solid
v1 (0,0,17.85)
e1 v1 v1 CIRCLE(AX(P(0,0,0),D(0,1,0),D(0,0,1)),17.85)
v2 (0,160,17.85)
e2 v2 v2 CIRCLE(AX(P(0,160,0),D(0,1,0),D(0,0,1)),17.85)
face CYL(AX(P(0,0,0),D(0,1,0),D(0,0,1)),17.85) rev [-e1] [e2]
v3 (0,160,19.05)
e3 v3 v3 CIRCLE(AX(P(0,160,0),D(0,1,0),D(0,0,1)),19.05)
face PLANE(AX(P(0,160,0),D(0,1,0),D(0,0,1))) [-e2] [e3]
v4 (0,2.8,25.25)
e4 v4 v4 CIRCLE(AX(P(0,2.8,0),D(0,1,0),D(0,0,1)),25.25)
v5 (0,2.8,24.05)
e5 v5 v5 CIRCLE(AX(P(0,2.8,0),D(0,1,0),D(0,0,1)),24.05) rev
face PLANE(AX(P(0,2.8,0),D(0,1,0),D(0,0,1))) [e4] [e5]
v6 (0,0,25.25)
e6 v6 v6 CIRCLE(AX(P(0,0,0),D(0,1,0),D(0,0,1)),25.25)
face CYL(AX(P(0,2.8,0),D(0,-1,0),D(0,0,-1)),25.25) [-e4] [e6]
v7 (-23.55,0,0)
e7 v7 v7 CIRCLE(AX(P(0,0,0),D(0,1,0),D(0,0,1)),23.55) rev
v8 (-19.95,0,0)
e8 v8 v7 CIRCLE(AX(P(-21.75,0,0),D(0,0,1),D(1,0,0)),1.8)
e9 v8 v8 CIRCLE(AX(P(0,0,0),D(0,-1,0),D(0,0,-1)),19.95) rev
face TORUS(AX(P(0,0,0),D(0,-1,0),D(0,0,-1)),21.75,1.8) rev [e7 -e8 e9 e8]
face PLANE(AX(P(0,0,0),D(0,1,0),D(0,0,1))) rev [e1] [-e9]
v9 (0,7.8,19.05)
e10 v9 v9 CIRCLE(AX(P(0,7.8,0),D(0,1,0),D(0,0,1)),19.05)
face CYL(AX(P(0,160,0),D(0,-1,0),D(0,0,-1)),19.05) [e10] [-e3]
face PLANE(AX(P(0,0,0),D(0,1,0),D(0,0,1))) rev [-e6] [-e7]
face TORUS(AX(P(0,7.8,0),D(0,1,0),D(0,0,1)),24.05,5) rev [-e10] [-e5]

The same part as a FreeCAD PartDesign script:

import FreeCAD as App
import Part
import Sketcher

V = App.Vector


def edges_at(feature, points):
    """Names of the edges that pass closest to the given points."""
    edges = feature.Shape.Edges
    near = lambda p: min(range(len(edges)), key=lambda i: edges[i].distToShape(Part.Vertex(*p))[0])
    return sorted({f"Edge{near(p) + 1}" for p in points})

doc = App.newDocument("Part")
params = doc.addObject("Spreadsheet::Sheet", "Params")
for row, (alias, value) in enumerate([
    ("sketch1_diameter", "50.5 mm"),
    ("pad1_length", "2.8 mm"),
    ("sketch2_diameter", "38.1 mm"),
    ("pad2_length", "157.2 mm"),
    ("fillet_radius", "5 mm"),
    ("sketch3_diameter", "35.7 mm"),
    ("sketch4_diameter", "3.6 mm"),
    ("sketch5_diameter", "43.5 mm"),
], start=1):
    params.set(f"A{row}", alias)
    params.set(f"B{row}", "=" + value)
    params.setAlias(f"B{row}", alias)

body = doc.addObject("PartDesign::Body", "Body")

# Sketch on XZ plane
sketch1 = body.newObject("Sketcher::SketchObject", "Sketch")
sketch1.AttachmentSupport = (doc.getObject("XZ_Plane"), [""])
sketch1.MapMode = "FlatFace"
sketch1.addGeometry(Part.Circle(V(0, 0, 0), V(0, 0, 1), 25.25), False)
sketch1.addConstraint(Sketcher.Constraint("Coincident", 0, 3, -1, 1))
sketch1.addConstraint(Sketcher.Constraint("Diameter", 0, 50.5))
sketch1.setExpression("Constraints[1]", "Params.sketch1_diameter")
pad1 = body.newObject("PartDesign::Pad", "Pad")
pad1.Profile = sketch1
pad1.setExpression("Length", "Params.pad1_length")
pad1.Reversed = True

# Sketch on XZ plane
sketch2 = body.newObject("Sketcher::SketchObject", "Sketch001")
sketch2.AttachmentSupport = (doc.getObject("XZ_Plane"), [""])
sketch2.MapMode = "FlatFace"
sketch2.AttachmentOffset = App.Placement(V(0, 0, -2.8), App.Rotation())
sketch2.addGeometry(Part.Circle(V(0, 0, 0), V(0, 0, 1), 19.05), False)
sketch2.addConstraint(Sketcher.Constraint("Coincident", 0, 3, -1, 1))
sketch2.addConstraint(Sketcher.Constraint("Diameter", 0, 38.1))
sketch2.setExpression("Constraints[1]", "Params.sketch2_diameter")
pad2 = body.newObject("PartDesign::Pad", "Pad001")
pad2.Profile = sketch2
pad2.setExpression("Length", "Params.pad2_length")
pad2.Reversed = True
doc.recompute()

fillet = body.newObject("PartDesign::Fillet", "Fillet")
fillet.Base = (pad2, edges_at(pad2, [(0, 2.8, -19.05)]))
fillet.setExpression("Radius", "Params.fillet_radius")

# Sketch on XZ plane
sketch3 = body.newObject("Sketcher::SketchObject", "Sketch002")
sketch3.AttachmentSupport = (doc.getObject("XZ_Plane"), [""])
sketch3.MapMode = "FlatFace"
sketch3.AttachmentOffset = App.Placement(V(0, 0, -160), App.Rotation())
sketch3.addGeometry(Part.Circle(V(0, 0, 0), V(0, 0, 1), 17.85), False)
sketch3.addConstraint(Sketcher.Constraint("Coincident", 0, 3, -1, 1))
sketch3.addConstraint(Sketcher.Constraint("Diameter", 0, 35.7))
sketch3.setExpression("Constraints[1]", "Params.sketch3_diameter")
pocket1 = body.newObject("PartDesign::Pocket", "Pocket")
pocket1.Profile = sketch3
pocket1.Type = "ThroughAll"
pocket1.Reversed = True

# Sketch on XY plane
sketch4 = body.newObject("Sketcher::SketchObject", "Sketch003")
sketch4.AttachmentSupport = (doc.getObject("XY_Plane"), [""])
sketch4.MapMode = "FlatFace"
sketch4.addGeometry(Part.Circle(V(-21.75, 0, 0), V(0, 0, 1), 1.8), False)
sketch4.addConstraint(Sketcher.Constraint("PointOnObject", 0, 3, -1))
sketch4.addConstraint(Sketcher.Constraint("Diameter", 0, 3.6))
sketch4.addConstraint(Sketcher.Constraint("DistanceX", 0, 3, -1, 1, 21.75))
sketch4.setExpression("Constraints[1]", "Params.sketch4_diameter")

# Sketch on XZ plane
sketch5 = body.newObject("Sketcher::SketchObject", "Sketch004")
sketch5.AttachmentSupport = (doc.getObject("XZ_Plane"), [""])
sketch5.MapMode = "FlatFace"
sketch5.addGeometry(Part.Circle(V(0, 0, 0), V(0, 0, 1), 21.75), False)
sketch5.addConstraint(Sketcher.Constraint("Coincident", 0, 3, -1, 1))
sketch5.addConstraint(Sketcher.Constraint("Diameter", 0, 43.5))
sketch5.setExpression("Constraints[1]", "Params.sketch5_diameter")
doc.recompute()

subtractivepipe = body.newObject("PartDesign::SubtractivePipe", "SubtractivePipe")
subtractivepipe.Profile = sketch4
subtractivepipe.Spine = (sketch5, ["Edge1"])

doc.recompute()
